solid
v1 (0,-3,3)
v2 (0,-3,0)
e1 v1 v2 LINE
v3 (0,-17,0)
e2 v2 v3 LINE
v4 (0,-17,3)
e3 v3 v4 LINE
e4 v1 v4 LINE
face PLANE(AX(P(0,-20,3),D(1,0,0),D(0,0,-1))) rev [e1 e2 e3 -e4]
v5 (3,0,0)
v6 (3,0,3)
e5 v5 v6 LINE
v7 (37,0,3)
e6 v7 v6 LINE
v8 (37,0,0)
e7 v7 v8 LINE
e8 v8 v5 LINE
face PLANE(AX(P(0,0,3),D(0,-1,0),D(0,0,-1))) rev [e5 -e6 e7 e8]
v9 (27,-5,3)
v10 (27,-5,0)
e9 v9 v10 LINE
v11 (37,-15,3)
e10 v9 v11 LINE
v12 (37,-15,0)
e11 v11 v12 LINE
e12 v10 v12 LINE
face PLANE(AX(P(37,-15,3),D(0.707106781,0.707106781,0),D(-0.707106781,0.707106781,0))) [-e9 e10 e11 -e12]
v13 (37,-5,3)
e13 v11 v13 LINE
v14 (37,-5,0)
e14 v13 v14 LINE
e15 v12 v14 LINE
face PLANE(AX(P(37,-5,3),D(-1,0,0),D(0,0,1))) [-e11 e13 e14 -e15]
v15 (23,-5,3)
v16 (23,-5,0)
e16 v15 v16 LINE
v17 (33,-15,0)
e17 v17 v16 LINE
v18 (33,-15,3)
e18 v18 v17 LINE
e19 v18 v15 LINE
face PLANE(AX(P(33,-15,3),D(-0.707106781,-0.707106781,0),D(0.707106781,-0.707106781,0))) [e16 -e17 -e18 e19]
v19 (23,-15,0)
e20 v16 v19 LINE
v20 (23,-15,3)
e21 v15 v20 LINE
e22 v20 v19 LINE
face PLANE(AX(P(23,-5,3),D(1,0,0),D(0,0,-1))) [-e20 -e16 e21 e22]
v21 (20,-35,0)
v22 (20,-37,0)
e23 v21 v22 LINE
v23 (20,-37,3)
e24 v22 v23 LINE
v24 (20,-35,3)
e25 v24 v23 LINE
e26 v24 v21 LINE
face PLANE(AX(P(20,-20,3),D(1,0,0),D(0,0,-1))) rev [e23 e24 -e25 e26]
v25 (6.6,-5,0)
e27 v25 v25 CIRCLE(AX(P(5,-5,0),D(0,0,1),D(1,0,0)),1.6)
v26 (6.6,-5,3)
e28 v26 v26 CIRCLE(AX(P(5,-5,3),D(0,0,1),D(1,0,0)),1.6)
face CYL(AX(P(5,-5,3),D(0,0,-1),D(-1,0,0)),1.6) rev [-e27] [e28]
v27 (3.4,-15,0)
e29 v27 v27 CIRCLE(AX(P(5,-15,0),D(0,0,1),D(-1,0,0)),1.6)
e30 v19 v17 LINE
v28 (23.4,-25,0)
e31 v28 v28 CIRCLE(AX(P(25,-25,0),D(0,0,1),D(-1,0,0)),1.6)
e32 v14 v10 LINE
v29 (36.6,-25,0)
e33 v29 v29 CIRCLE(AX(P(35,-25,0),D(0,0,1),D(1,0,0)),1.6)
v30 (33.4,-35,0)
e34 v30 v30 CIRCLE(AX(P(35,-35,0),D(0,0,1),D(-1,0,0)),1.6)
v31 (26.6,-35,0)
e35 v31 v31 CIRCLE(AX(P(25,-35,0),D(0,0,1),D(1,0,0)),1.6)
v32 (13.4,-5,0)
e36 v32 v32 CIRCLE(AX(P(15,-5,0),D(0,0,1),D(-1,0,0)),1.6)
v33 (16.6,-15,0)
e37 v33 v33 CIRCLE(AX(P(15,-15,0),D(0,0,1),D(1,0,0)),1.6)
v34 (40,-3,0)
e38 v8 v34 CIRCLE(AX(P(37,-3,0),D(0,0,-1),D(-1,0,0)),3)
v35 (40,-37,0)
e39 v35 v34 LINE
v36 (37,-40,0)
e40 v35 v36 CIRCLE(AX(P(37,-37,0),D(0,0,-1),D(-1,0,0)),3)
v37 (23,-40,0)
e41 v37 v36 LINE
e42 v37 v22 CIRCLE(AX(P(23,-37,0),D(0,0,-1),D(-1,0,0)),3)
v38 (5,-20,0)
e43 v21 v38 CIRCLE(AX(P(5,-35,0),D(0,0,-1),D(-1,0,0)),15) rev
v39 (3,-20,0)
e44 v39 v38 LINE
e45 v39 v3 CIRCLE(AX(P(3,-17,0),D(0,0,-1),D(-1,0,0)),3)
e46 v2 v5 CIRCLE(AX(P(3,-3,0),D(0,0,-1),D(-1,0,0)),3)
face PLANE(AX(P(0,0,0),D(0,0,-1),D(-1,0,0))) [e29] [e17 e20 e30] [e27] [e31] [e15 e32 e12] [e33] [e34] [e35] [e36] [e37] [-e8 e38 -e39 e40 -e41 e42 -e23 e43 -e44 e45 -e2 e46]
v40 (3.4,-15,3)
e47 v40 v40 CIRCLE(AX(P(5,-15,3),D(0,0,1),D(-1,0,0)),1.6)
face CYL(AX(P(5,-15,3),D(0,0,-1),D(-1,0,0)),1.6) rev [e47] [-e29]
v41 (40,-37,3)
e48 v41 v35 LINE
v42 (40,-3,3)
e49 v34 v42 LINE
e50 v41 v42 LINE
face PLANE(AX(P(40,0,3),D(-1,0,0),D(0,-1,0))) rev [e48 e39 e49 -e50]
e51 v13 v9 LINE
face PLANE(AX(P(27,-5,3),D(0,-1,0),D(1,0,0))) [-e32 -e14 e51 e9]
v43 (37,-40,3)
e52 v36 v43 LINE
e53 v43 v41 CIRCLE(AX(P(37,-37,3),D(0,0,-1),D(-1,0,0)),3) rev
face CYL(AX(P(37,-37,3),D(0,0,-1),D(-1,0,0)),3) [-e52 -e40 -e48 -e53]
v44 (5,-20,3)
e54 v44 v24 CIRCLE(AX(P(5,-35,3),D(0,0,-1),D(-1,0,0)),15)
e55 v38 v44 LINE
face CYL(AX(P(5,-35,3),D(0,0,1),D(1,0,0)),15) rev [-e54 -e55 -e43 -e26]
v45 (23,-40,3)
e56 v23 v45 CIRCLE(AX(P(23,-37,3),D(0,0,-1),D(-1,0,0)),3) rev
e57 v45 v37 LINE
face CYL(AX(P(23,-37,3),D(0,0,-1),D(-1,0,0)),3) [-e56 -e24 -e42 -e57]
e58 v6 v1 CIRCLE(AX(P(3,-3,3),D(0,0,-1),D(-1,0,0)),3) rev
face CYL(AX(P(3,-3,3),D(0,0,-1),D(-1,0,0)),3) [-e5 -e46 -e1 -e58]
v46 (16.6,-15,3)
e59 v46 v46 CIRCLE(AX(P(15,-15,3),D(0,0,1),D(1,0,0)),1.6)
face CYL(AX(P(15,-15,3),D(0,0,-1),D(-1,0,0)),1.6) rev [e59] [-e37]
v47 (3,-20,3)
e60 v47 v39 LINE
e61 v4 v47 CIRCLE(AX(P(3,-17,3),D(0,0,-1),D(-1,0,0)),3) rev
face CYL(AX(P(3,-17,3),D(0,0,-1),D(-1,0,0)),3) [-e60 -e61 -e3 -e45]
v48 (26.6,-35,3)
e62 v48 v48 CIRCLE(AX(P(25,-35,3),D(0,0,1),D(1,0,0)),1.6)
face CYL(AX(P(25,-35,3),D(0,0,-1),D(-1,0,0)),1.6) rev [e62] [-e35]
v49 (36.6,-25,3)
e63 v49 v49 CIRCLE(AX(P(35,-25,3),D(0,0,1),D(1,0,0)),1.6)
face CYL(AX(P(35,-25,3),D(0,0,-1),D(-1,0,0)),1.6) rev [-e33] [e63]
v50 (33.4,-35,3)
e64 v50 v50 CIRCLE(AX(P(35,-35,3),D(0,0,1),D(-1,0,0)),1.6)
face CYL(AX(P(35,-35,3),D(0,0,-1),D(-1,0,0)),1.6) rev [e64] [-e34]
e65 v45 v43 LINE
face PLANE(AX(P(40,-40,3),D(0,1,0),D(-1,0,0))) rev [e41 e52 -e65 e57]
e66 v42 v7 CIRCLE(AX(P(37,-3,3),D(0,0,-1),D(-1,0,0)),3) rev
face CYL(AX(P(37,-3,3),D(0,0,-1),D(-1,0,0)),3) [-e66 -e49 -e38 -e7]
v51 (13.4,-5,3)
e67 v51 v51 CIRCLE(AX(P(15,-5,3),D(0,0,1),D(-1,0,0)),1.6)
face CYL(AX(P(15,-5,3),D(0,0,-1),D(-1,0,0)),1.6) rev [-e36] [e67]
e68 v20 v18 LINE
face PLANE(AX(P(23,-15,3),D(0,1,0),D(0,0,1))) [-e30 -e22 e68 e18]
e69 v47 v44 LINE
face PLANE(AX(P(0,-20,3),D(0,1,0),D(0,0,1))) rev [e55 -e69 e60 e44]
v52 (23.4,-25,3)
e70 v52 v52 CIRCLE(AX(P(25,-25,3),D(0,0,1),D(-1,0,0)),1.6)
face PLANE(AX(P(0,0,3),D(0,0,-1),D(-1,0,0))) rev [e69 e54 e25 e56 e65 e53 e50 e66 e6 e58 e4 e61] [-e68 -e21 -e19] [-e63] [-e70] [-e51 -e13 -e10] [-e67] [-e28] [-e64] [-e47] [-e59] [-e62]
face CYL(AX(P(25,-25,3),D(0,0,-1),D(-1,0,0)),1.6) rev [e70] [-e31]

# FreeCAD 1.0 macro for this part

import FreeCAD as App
import Part
import Sketcher

V = App.Vector


def edges_at(feature, points):
    """Names of the edges that pass closest to the given points."""
    edges = feature.Shape.Edges
    near = lambda p: min(range(len(edges)), key=lambda i: edges[i].distToShape(Part.Vertex(*p))[0])
    return sorted({f"Edge{near(p) + 1}" for p in points})


def add_polygon(sketch, points):
    """Adds a closed chain of lines whose ends are joined by coincident constraints."""
    first, n = sketch.GeometryCount, len(points)
    for a, b in zip(points, points[1:] + points[:1]):
        sketch.addGeometry(Part.LineSegment(App.Vector(*a, 0), App.Vector(*b, 0)), False)
    for i in range(n):
        sketch.addConstraint(Sketcher.Constraint("Coincident", first + i, 2, first + (i + 1) % n, 1))

doc = App.newDocument("Part")
body = doc.addObject("PartDesign::Body", "Body")

# Sketch on XY plane
sketch1 = body.newObject("Sketcher::SketchObject", "Sketch")
sketch1.AttachmentSupport = (doc.getObject("XY_Plane"), [""])
sketch1.MapMode = "FlatFace"
add_polygon(sketch1, [(40, 0), (0, 0), (0, -20), (20, -20), (20, -40), (40, -40)])  # lines 0-5
sketch1.addGeometry(Part.Circle(V(35, -35, 0), V(0, 0, 1), 1.6), False)  # 6
sketch1.addGeometry(Part.Circle(V(25, -35, 0), V(0, 0, 1), 1.6), False)  # 7
sketch1.addGeometry(Part.Circle(V(35, -25, 0), V(0, 0, 1), 1.6), False)  # 8
sketch1.addGeometry(Part.Circle(V(25, -25, 0), V(0, 0, 1), 1.6), False)  # 9
add_polygon(sketch1, [(27, -5), (37, -5), (37, -15)])  # lines 10-12
add_polygon(sketch1, [(23, -5), (33, -15), (23, -15)])  # lines 13-15
sketch1.addGeometry(Part.Circle(V(15, -15, 0), V(0, 0, 1), 1.6), False)  # 16
sketch1.addGeometry(Part.Circle(V(5, -15, 0), V(0, 0, 1), 1.6), False)  # 17
sketch1.addGeometry(Part.Circle(V(15, -5, 0), V(0, 0, 1), 1.6), False)  # 18
sketch1.addGeometry(Part.Circle(V(5, -5, 0), V(0, 0, 1), 1.6), False)  # 19
sketch1.addConstraint(Sketcher.Constraint("Horizontal", 0))
sketch1.addConstraint(Sketcher.Constraint("Vertical", 1))
sketch1.addConstraint(Sketcher.Constraint("Horizontal", 2))
sketch1.addConstraint(Sketcher.Constraint("Vertical", 3))
sketch1.addConstraint(Sketcher.Constraint("Horizontal", 4))
sketch1.addConstraint(Sketcher.Constraint("Vertical", 5))
sketch1.addConstraint(Sketcher.Constraint("Horizontal", 10))
sketch1.addConstraint(Sketcher.Constraint("Vertical", 11))
sketch1.addConstraint(Sketcher.Constraint("Horizontal", 14))
sketch1.addConstraint(Sketcher.Constraint("Vertical", 15))
sketch1.addConstraint(Sketcher.Constraint("Coincident", 0, 2, -1, 1))
sketch1.addConstraint(Sketcher.Constraint("Equal", 6, 7))
sketch1.addConstraint(Sketcher.Constraint("Equal", 7, 8))
sketch1.addConstraint(Sketcher.Constraint("Equal", 8, 9))
sketch1.addConstraint(Sketcher.Constraint("Equal", 9, 16))
sketch1.addConstraint(Sketcher.Constraint("Equal", 16, 17))
sketch1.addConstraint(Sketcher.Constraint("Equal", 17, 18))
sketch1.addConstraint(Sketcher.Constraint("Equal", 18, 19))
sketch1.addConstraint(Sketcher.Constraint("Parallel", 12, 13))
sketch1.addConstraint(Sketcher.Constraint("Horizontal", 6, 3, 7, 3))
sketch1.addConstraint(Sketcher.Constraint("Horizontal", 8, 3, 9, 3))
sketch1.addConstraint(Sketcher.Constraint("Horizontal", 16, 3, 17, 3))
sketch1.addConstraint(Sketcher.Constraint("Horizontal", 18, 3, 19, 3))
sketch1.addConstraint(Sketcher.Constraint("Horizontal", 19, 3, 10, 2))
sketch1.addConstraint(Sketcher.Constraint("Horizontal", 17, 3, 11, 2))
sketch1.addConstraint(Sketcher.Constraint("Horizontal", 11, 2, 13, 2))
sketch1.addConstraint(Sketcher.Constraint("Horizontal", 12, 2, 15, 2))
sketch1.addConstraint(Sketcher.Constraint("Vertical", 6, 3, 8, 3))
sketch1.addConstraint(Sketcher.Constraint("Vertical", 7, 3, 9, 3))
sketch1.addConstraint(Sketcher.Constraint("Vertical", 16, 3, 18, 3))
sketch1.addConstraint(Sketcher.Constraint("Vertical", 17, 3, 19, 3))
sketch1.addConstraint(Sketcher.Constraint("Equal", 2, 4))
sketch1.addConstraint(Sketcher.Constraint("Equal", 4, 1))
sketch1.addConstraint(Sketcher.Constraint("Equal", 1, 3))
sketch1.addConstraint(Sketcher.Constraint("Equal", 14, 11))
sketch1.addConstraint(Sketcher.Constraint("Diameter", 6, 3.2))
sketch1.addConstraint(Sketcher.Constraint("DistanceX", 0, 2, 0, 1, 40.0))
sketch1.addConstraint(Sketcher.Constraint("DistanceX", 10, 1, 10, 2, 10.0))
sketch1.addConstraint(Sketcher.Constraint("DistanceX", -1, 1, 6, 3, 35.0))
sketch1.addConstraint(Sketcher.Constraint("DistanceY", 6, 3, -1, 1, 35.0))
sketch1.addConstraint(Sketcher.Constraint("DistanceX", -1, 1, 7, 3, 25.0))
sketch1.addConstraint(Sketcher.Constraint("DistanceY", 8, 3, -1, 1, 25.0))
sketch1.addConstraint(Sketcher.Constraint("DistanceX", -1, 1, 16, 3, 15.0))
sketch1.addConstraint(Sketcher.Constraint("DistanceY", 16, 3, -1, 1, 15.0))
sketch1.addConstraint(Sketcher.Constraint("DistanceX", -1, 1, 17, 3, 5.0))
sketch1.addConstraint(Sketcher.Constraint("DistanceX", -1, 1, 10, 2, 37.0))
sketch1.addConstraint(Sketcher.Constraint("DistanceX", -1, 1, 13, 2, 33.0))
pad1 = body.newObject("PartDesign::Pad", "Pad")
pad1.Profile = sketch1
pad1.Length = 3
doc.recompute()

fillet = body.newObject("PartDesign::Fillet", "Fillet")
fillet.Base = (pad1, edges_at(pad1, [
    (0, 0, 1.5),
    (40, 0, 1.5),
    (40, -40, 1.5),
    (20, -40, 1.5),
    (0, -20, 1.5),
]))
fillet.Radius = 3
doc.recompute()

fillet2 = body.newObject("PartDesign::Fillet", "Fillet001")
fillet2.Base = (fillet, edges_at(fillet, [(20, -20, 1.5)]))
fillet2.Radius = 15

doc.recompute()
